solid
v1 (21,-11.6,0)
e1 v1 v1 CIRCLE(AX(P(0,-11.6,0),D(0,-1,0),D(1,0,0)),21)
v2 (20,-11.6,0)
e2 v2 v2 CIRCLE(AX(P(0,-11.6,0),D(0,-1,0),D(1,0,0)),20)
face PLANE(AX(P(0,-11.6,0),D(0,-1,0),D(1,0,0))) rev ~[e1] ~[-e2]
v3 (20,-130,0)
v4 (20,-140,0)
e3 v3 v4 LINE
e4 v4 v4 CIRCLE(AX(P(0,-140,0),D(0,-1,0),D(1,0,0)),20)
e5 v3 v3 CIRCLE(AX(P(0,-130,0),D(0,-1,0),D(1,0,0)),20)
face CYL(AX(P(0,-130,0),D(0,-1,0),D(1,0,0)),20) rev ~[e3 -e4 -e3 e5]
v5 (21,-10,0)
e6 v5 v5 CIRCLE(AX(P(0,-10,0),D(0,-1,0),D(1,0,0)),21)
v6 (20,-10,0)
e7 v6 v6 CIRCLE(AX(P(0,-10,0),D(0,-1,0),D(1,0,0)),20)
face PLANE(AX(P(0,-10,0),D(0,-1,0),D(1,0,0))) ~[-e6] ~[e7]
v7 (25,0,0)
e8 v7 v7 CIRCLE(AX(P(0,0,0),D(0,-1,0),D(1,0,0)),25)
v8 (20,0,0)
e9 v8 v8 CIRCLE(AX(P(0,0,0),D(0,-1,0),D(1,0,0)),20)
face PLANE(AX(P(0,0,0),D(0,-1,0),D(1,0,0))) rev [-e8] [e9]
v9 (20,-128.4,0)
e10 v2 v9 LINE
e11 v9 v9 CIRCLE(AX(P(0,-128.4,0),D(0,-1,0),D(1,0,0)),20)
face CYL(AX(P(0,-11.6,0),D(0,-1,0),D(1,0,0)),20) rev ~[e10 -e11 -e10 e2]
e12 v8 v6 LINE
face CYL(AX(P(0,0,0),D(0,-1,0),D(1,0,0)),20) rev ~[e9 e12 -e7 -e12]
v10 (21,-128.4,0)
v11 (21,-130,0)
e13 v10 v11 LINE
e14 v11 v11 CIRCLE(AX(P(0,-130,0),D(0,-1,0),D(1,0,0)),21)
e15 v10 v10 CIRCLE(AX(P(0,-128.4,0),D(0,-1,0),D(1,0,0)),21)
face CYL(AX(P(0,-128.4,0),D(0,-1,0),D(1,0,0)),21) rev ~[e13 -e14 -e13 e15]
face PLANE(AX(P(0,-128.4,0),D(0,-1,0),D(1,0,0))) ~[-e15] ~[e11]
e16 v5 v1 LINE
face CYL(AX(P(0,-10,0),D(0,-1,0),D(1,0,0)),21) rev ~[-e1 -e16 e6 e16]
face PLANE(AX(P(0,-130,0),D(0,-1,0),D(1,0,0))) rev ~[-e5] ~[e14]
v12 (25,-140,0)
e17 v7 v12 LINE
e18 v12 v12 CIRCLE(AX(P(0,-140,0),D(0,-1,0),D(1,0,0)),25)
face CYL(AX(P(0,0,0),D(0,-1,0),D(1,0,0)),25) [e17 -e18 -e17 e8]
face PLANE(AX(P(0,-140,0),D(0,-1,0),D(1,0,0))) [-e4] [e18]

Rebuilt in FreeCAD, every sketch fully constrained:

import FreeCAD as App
import Part
import Sketcher

V = App.Vector
Q = App.Units.Quantity

doc = App.newDocument("Part")
body = doc.addObject("PartDesign::Body", "Body")

# Sketch on XY plane
sketch1 = doc.addObject("Sketcher::SketchObject", "Sketch")
body.addObject(sketch1)
sketch1.AttachmentSupport = (doc.XY_Plane, [""])
sketch1.MapMode = "FlatFace"
sketch1.addGeometry(Part.LineSegment(V(25, -140, 0), V(25, 0, 0)), False)
sketch1.addGeometry(Part.LineSegment(V(25, 0, 0), V(20, 0, 0)), False)
sketch1.addGeometry(Part.LineSegment(V(20, 0, 0), V(20, -10, 0)), False)
sketch1.addGeometry(Part.LineSegment(V(20, -10, 0), V(21, -10, 0)), False)
sketch1.addGeometry(Part.LineSegment(V(21, -10, 0), V(21, -11.6, 0)), False)
sketch1.addGeometry(Part.LineSegment(V(21, -11.6, 0), V(20, -11.6, 0)), False)
sketch1.addGeometry(Part.LineSegment(V(20, -11.6, 0), V(20, -128.4, 0)), False)
sketch1.addGeometry(Part.LineSegment(V(20, -128.4, 0), V(21, -128.4, 0)), False)
sketch1.addGeometry(Part.LineSegment(V(21, -128.4, 0), V(21, -130, 0)), False)
sketch1.addGeometry(Part.LineSegment(V(21, -130, 0), V(20, -130, 0)), False)
sketch1.addGeometry(Part.LineSegment(V(20, -130, 0), V(20, -140, 0)), False)
sketch1.addGeometry(Part.LineSegment(V(20, -140, 0), V(25, -140, 0)), False)
sketch1.addConstraint(Sketcher.Constraint("Coincident", 0, 2, 1, 1))
sketch1.addConstraint(Sketcher.Constraint("Coincident", 1, 2, 2, 1))
sketch1.addConstraint(Sketcher.Constraint("Coincident", 2, 2, 3, 1))
sketch1.addConstraint(Sketcher.Constraint("Coincident", 3, 2, 4, 1))
sketch1.addConstraint(Sketcher.Constraint("Coincident", 4, 2, 5, 1))
sketch1.addConstraint(Sketcher.Constraint("Coincident", 5, 2, 6, 1))
sketch1.addConstraint(Sketcher.Constraint("Coincident", 6, 2, 7, 1))
sketch1.addConstraint(Sketcher.Constraint("Coincident", 7, 2, 8, 1))
sketch1.addConstraint(Sketcher.Constraint("Coincident", 8, 2, 9, 1))
sketch1.addConstraint(Sketcher.Constraint("Coincident", 9, 2, 10, 1))
sketch1.addConstraint(Sketcher.Constraint("Coincident", 10, 2, 11, 1))
sketch1.addConstraint(Sketcher.Constraint("Coincident", 11, 2, 0, 1))
sketch1.addConstraint(Sketcher.Constraint("Vertical", 0))
sketch1.addConstraint(Sketcher.Constraint("Horizontal", 1))
sketch1.addConstraint(Sketcher.Constraint("Vertical", 2))
sketch1.addConstraint(Sketcher.Constraint("Horizontal", 3))
sketch1.addConstraint(Sketcher.Constraint("Vertical", 4))
sketch1.addConstraint(Sketcher.Constraint("Horizontal", 5))
sketch1.addConstraint(Sketcher.Constraint("Vertical", 6))
sketch1.addConstraint(Sketcher.Constraint("Horizontal", 7))
sketch1.addConstraint(Sketcher.Constraint("Vertical", 8))
sketch1.addConstraint(Sketcher.Constraint("Horizontal", 9))
sketch1.addConstraint(Sketcher.Constraint("Vertical", 10))
sketch1.addConstraint(Sketcher.Constraint("Horizontal", 11))
sketch1.addConstraint(Sketcher.Constraint("PointOnObject", 0, 2, -1))
sketch1.addConstraint(Sketcher.Constraint("Vertical", 2, 2, 5, 2))
sketch1.addConstraint(Sketcher.Constraint("Vertical", 4, 2, 7, 2))
sketch1.addConstraint(Sketcher.Constraint("Vertical", 6, 2, 9, 2))
sketch1.addConstraint(Sketcher.Constraint("Equal", 4, 8))
sketch1.addConstraint(Sketcher.Constraint("Equal", 2, 10))
sketch1.addConstraint(Sketcher.Constraint("DistanceY", 0, 1, 0, 2, Q("140 mm")))
sketch1.addConstraint(Sketcher.Constraint("DistanceY", 2, 2, 2, 1, Q("10 mm")))
sketch1.addConstraint(Sketcher.Constraint("DistanceY", 4, 2, 4, 1, Q("1.6 mm")))
sketch1.addConstraint(Sketcher.Constraint("DistanceX", 1, 2, 1, 1, Q("5 mm")))
sketch1.addConstraint(Sketcher.Constraint("DistanceX", 3, 1, 3, 2, Q("1 mm")))
sketch1.addConstraint(Sketcher.Constraint("DistanceX", -1, 1, 0, 2, Q("25 mm")))
revolution = doc.addObject("PartDesign::Revolution", "Revolution")
body.addObject(revolution)
revolution.Profile = sketch1
revolution.ReferenceAxis = (sketch1, ["V_Axis"])
revolution.Angle = 360

doc.recompute()
